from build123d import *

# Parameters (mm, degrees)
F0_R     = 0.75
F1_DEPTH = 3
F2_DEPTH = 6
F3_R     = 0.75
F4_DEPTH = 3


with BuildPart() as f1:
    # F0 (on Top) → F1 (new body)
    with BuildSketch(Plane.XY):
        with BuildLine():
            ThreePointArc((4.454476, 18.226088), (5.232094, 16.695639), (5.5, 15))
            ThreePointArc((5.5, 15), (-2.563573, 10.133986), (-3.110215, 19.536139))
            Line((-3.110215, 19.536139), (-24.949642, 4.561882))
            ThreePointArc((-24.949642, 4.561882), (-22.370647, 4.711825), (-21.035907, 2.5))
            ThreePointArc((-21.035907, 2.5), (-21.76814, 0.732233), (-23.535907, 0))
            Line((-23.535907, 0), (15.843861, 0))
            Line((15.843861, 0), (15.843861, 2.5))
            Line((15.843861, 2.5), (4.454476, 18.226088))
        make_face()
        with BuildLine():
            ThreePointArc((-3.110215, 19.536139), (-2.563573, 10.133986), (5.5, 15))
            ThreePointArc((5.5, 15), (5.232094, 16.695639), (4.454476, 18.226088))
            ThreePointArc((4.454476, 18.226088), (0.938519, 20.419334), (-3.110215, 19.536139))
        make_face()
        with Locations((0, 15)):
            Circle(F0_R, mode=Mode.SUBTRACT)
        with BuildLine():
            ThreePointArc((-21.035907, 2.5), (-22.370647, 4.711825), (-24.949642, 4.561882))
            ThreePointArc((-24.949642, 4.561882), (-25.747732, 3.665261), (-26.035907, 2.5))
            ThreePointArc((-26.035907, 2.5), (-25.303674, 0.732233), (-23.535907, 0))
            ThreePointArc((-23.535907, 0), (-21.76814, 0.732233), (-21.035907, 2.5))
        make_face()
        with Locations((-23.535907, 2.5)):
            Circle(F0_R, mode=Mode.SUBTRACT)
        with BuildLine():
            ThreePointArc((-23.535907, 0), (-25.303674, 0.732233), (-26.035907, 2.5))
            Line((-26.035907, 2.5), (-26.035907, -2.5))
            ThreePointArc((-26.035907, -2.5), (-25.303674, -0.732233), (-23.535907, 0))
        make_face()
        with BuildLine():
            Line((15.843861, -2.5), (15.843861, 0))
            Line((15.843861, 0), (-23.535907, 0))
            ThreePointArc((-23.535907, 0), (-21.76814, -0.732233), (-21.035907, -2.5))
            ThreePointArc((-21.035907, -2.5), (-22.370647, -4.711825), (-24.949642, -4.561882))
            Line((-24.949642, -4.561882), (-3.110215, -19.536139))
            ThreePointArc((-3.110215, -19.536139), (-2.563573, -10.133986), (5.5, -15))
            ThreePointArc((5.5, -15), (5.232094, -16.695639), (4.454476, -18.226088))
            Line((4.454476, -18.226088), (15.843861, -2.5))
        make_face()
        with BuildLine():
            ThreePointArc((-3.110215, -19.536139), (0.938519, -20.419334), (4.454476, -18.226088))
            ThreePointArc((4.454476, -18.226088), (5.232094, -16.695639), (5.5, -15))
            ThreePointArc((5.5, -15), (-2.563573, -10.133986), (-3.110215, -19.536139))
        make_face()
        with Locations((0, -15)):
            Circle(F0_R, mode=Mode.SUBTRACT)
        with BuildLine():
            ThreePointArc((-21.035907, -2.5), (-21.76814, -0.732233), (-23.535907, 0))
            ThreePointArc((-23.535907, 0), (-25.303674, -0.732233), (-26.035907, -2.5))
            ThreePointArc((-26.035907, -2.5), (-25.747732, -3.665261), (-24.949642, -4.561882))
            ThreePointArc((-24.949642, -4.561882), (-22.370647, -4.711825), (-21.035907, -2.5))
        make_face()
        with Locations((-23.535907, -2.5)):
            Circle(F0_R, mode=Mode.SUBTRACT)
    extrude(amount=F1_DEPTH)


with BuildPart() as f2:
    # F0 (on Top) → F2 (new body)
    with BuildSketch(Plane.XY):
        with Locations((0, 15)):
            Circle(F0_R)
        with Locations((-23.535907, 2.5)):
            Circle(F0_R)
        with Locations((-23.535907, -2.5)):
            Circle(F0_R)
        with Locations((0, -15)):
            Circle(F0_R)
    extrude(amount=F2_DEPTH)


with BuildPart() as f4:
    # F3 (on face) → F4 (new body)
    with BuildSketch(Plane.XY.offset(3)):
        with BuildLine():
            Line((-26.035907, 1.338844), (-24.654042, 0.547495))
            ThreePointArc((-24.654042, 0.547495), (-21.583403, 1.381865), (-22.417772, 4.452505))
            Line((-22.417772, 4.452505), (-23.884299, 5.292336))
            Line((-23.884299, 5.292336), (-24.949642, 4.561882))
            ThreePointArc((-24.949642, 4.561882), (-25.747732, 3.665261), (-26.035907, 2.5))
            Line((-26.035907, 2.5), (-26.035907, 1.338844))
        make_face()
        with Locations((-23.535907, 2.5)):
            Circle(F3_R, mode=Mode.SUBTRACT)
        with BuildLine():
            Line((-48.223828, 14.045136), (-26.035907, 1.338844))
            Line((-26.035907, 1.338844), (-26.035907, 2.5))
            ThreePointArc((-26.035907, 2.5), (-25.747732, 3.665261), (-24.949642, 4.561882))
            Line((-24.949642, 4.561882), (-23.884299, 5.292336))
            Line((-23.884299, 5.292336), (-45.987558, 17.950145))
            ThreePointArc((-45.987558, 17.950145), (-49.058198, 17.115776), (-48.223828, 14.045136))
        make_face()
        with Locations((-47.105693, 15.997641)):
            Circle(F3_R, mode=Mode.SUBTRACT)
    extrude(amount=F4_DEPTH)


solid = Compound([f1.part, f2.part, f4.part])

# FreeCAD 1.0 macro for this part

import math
import FreeCAD as App
import Part
import Sketcher
Q = App.Units.Quantity

doc = App.newDocument("Part")
params = doc.addObject("Spreadsheet::Sheet", "Params")
for row, (alias, value) in enumerate([
    ("sketch1_diameter", "1.5 mm"),
    ("sketch1_radius", "2.499999 mm"),
    ("sketch1_radius2", "5.499999 mm"),
    ("sketch1_height", "5 mm"),
    ("pad1_length", "3 mm"),
    ("sketch2_diameter", "1.5 mm"),
    ("pad2_length", "6 mm"),
    ("sketch3_diameter", "1.5 mm"),
    ("sketch3_radius", "2.25 mm"),
    ("pad3_length", "3 mm"),
], start=1):
    params.set(f"A{row}", alias)
    params.set(f"B{row}", "=" + value)
    params.setAlias(f"B{row}", alias)

body = doc.addObject("PartDesign::Body", "Body")

sketch1 = doc.addObject("Sketcher::SketchObject", "Sketch")
body.addObject(sketch1)
sketch1.AttachmentSupport = (doc.XY_Plane, [""])
sketch1.MapMode = "FlatFace"
sketch1.addGeometry(Part.LineSegment(App.Vector(-3.1, 19.5, 0), App.Vector(-24.9, 4.6, 0)), False)
sketch1.addGeometry(Part.ArcOfCircle(Part.Circle(App.Vector(-23.5, 2.5, 0), App.Vector(0, 0, 1), 2.5), math.radians(124), math.radians(180)), False)
sketch1.addGeometry(Part.LineSegment(App.Vector(-26, 2.5, 0), App.Vector(-26, -2.5, 0)), False)
sketch1.addGeometry(Part.ArcOfCircle(Part.Circle(App.Vector(-23.5, -2.5, 0), App.Vector(0, 0, 1), 2.5), math.radians(180), math.radians(236)), False)
sketch1.addGeometry(Part.LineSegment(App.Vector(-24.9, -4.6, 0), App.Vector(-3.1, -19.5, 0)), False)
sketch1.addGeometry(Part.ArcOfCircle(Part.Circle(App.Vector(0, -15, 0), App.Vector(0, 0, 1), 5.5), math.radians(-124), math.radians(-36)), False)
sketch1.addGeometry(Part.LineSegment(App.Vector(4.5, -18.2, 0), App.Vector(15.8, -2.5, 0)), False)
sketch1.addGeometry(Part.LineSegment(App.Vector(15.8, -2.5, 0), App.Vector(15.8, 2.5, 0)), False)
sketch1.addGeometry(Part.LineSegment(App.Vector(15.8, 2.5, 0), App.Vector(4.5, 18.2, 0)), False)
sketch1.addGeometry(Part.ArcOfCircle(Part.Circle(App.Vector(0, 15, 0), App.Vector(0, 0, 1), 5.5), math.radians(36), math.radians(124)), False)
sketch1.addGeometry(Part.Circle(App.Vector(-23.5, -2.5, 0), App.Vector(0, 0, 1), 0.8), False)
sketch1.addGeometry(Part.Circle(App.Vector(0, -15, 0), App.Vector(0, 0, 1), 0.8), False)
sketch1.addGeometry(Part.Circle(App.Vector(-23.5, 2.5, 0), App.Vector(0, 0, 1), 0.8), False)
sketch1.addGeometry(Part.Circle(App.Vector(0, 15, 0), App.Vector(0, 0, 1), 0.8), False)
sketch1.addConstraint(Sketcher.Constraint("Tangent", 0, 2, 1, 1))
sketch1.addConstraint(Sketcher.Constraint("Tangent", 1, 2, 2, 1))
sketch1.addConstraint(Sketcher.Constraint("Tangent", 2, 2, 3, 1))
sketch1.addConstraint(Sketcher.Constraint("Tangent", 3, 2, 4, 1))
sketch1.addConstraint(Sketcher.Constraint("Tangent", 4, 2, 5, 1))
sketch1.addConstraint(Sketcher.Constraint("Tangent", 5, 2, 6, 1))
sketch1.addConstraint(Sketcher.Constraint("Coincident", 6, 2, 7, 1))
sketch1.addConstraint(Sketcher.Constraint("Coincident", 7, 2, 8, 1))
sketch1.addConstraint(Sketcher.Constraint("Tangent", 8, 2, 9, 1))
sketch1.addConstraint(Sketcher.Constraint("Tangent", 9, 2, 0, 1))
sketch1.addConstraint(Sketcher.Constraint("Vertical", 2))
sketch1.addConstraint(Sketcher.Constraint("Vertical", 7))
sketch1.addConstraint(Sketcher.Constraint("Coincident", 10, 3, 3, 3))
sketch1.addConstraint(Sketcher.Constraint("Coincident", 11, 3, 5, 3))
sketch1.addConstraint(Sketcher.Constraint("Coincident", 12, 3, 1, 3))
sketch1.addConstraint(Sketcher.Constraint("Coincident", 13, 3, 9, 3))
sketch1.addConstraint(Sketcher.Constraint("Equal", 1, 3))
sketch1.addConstraint(Sketcher.Constraint("Equal", 5, 9))
sketch1.addConstraint(Sketcher.Constraint("Equal", 10, 11))
sketch1.addConstraint(Sketcher.Constraint("Equal", 11, 12))
sketch1.addConstraint(Sketcher.Constraint("Equal", 12, 13))
sketch1.addConstraint(Sketcher.Constraint("Symmetric", 5, 3, 9, 3, -1, 1))
sketch1.addConstraint(Sketcher.Constraint("Symmetric", 0, 2, 3, 2, -1))
sketch1.addConstraint(Sketcher.Constraint("Horizontal", 2, 2, 6, 2))
sketch1.addConstraint(Sketcher.Constraint("Horizontal", 1, 2, 7, 2))
sketch1.addConstraint(Sketcher.Constraint("Diameter", 10, Q("1.5 mm")))
sketch1.addConstraint(Sketcher.Constraint("Radius", 1, Q("2.499999 mm")))
sketch1.addConstraint(Sketcher.Constraint("Radius", 5, Q("5.499999 mm")))
sketch1.addConstraint(Sketcher.Constraint("DistanceY", 2, 2, 2, 1, Q("5 mm")))
sketch1.addConstraint(Sketcher.Constraint("DistanceY", 5, 3, -1, 1, Q("15 mm")))
sketch1.addConstraint(Sketcher.Constraint("DistanceX", 1, 3, -1, 1, Q("23.535908 mm")))
sketch1.addConstraint(Sketcher.Constraint("DistanceY", 5, 2, -1, 1, Q("18.226088 mm")))
sketch1.setExpression("Constraints[25]", "Params.sketch1_diameter")
sketch1.setExpression("Constraints[26]", "Params.sketch1_radius")
sketch1.setExpression("Constraints[27]", "Params.sketch1_radius2")
sketch1.setExpression("Constraints[28]", "Params.sketch1_height")
pad1 = doc.addObject("PartDesign::Pad", "Pad")
body.addObject(pad1)
pad1.Profile = sketch1
pad1.setExpression("Length", "Params.pad1_length")
body2 = doc.addObject("PartDesign::Body", "Body001")
body2.AllowCompound = True

sketch2 = doc.addObject("Sketcher::SketchObject", "Sketch001")
body2.addObject(sketch2)
sketch2.AttachmentSupport = (doc.getObject("XY_Plane001"), [""])
sketch2.MapMode = "FlatFace"
sketch2.addGeometry(Part.Circle(App.Vector(0, 15, 0), App.Vector(0, 0, 1), 0.8), False)
sketch2.addGeometry(Part.Circle(App.Vector(-23.5, 2.5, 0), App.Vector(0, 0, 1), 0.8), False)
sketch2.addGeometry(Part.Circle(App.Vector(-23.5, -2.5, 0), App.Vector(0, 0, 1), 0.8), False)
sketch2.addGeometry(Part.Circle(App.Vector(0, -15, 0), App.Vector(0, 0, 1), 0.8), False)
sketch2.addConstraint(Sketcher.Constraint("Equal", 0, 1))
sketch2.addConstraint(Sketcher.Constraint("Equal", 1, 2))
sketch2.addConstraint(Sketcher.Constraint("Equal", 2, 3))
sketch2.addConstraint(Sketcher.Constraint("Symmetric", 0, 3, 3, 3, -1, 1))
sketch2.addConstraint(Sketcher.Constraint("Symmetric", 1, 3, 2, 3, -1))
sketch2.addConstraint(Sketcher.Constraint("PointOnObject", 0, 3, -2))
sketch2.addConstraint(Sketcher.Constraint("Diameter", 0, Q("1.5 mm")))
sketch2.addConstraint(Sketcher.Constraint("DistanceY", -1, 1, 0, 3, Q("15 mm")))
sketch2.addConstraint(Sketcher.Constraint("DistanceY", 2, 3, 1, 3, Q("5 mm")))
sketch2.addConstraint(Sketcher.Constraint("DistanceX", 1, 3, -1, 1, Q("23.535907 mm")))
sketch2.setExpression("Constraints[6]", "Params.sketch2_diameter")
pad2 = doc.addObject("PartDesign::Pad", "Pad001")
body2.addObject(pad2)
pad2.Profile = sketch2
pad2.setExpression("Length", "Params.pad2_length")
body3 = doc.addObject("PartDesign::Body", "Body002")

sketch3 = doc.addObject("Sketcher::SketchObject", "Sketch002")
body3.addObject(sketch3)
sketch3.AttachmentSupport = (doc.getObject("XY_Plane002"), [""])
sketch3.MapMode = "FlatFace"
sketch3.AttachmentOffset = App.Placement(App.Vector(0, 0, 3), App.Rotation())
sketch3.addGeometry(Part.LineSegment(App.Vector(-26, 1.3, 0), App.Vector(-24.7, 0.5, 0)), False)
sketch3.addGeometry(Part.ArcOfCircle(Part.Circle(App.Vector(-23.5, 2.5, 0), App.Vector(0, 0, 1), 2.3), math.radians(-120), math.radians(60)), False)
sketch3.addGeometry(Part.LineSegment(App.Vector(-22.4, 4.5, 0), App.Vector(-23.9, 5.3, 0)), False)
sketch3.addGeometry(Part.LineSegment(App.Vector(-23.9, 5.3, 0), App.Vector(-46, 18, 0)), False)
sketch3.addGeometry(Part.ArcOfCircle(Part.Circle(App.Vector(-47.1, 16, 0), App.Vector(0, 0, 1), 2.2), math.radians(60), math.radians(240)), False)
sketch3.addGeometry(Part.LineSegment(App.Vector(-48.2, 14, 0), App.Vector(-26, 1.3, 0)), False)
sketch3.addGeometry(Part.Circle(App.Vector(-23.5, 2.5, 0), App.Vector(0, 0, 1), 0.8), False)
sketch3.addGeometry(Part.Circle(App.Vector(-47.1, 16, 0), App.Vector(0, 0, 1), 0.8), False)
sketch3.addConstraint(Sketcher.Constraint("Tangent", 0, 2, 1, 1))
sketch3.addConstraint(Sketcher.Constraint("Tangent", 1, 2, 2, 1))
sketch3.addConstraint(Sketcher.Constraint("Coincident", 2, 2, 3, 1))
sketch3.addConstraint(Sketcher.Constraint("Tangent", 3, 2, 4, 1))
sketch3.addConstraint(Sketcher.Constraint("Tangent", 4, 2, 5, 1))
sketch3.addConstraint(Sketcher.Constraint("Coincident", 5, 2, 0, 1))
sketch3.addConstraint(Sketcher.Constraint("Coincident", 6, 3, 1, 3))
sketch3.addConstraint(Sketcher.Constraint("Coincident", 7, 3, 4, 3))
sketch3.addConstraint(Sketcher.Constraint("Equal", 1, 4))
sketch3.addConstraint(Sketcher.Constraint("Equal", 6, 7))
sketch3.addConstraint(Sketcher.Constraint("Parallel", 0, 2))
sketch3.addConstraint(Sketcher.Constraint("Parallel", 2, 3))
sketch3.addConstraint(Sketcher.Constraint("Diameter", 6, Q("1.5 mm")))
sketch3.addConstraint(Sketcher.Constraint("Radius", 1, Q("2.25 mm")))
sketch3.addConstraint(Sketcher.Constraint("DistanceY", -1, 1, 1, 3, Q("2.5 mm")))
sketch3.addConstraint(Sketcher.Constraint("DistanceX", 5, 2, 1, 3, Q("2.499999 mm")))
sketch3.addConstraint(Sketcher.Constraint("DistanceX", 2, 2, -1, 1, Q("23.884299 mm")))
sketch3.addConstraint(Sketcher.Constraint("DistanceY", 2, 2, 4, 2, Q("8.7528 mm")))
sketch3.addConstraint(Sketcher.Constraint("DistanceY", -1, 1, 4, 3, Q("15.997641 mm")))
sketch3.addConstraint(Sketcher.Constraint("DistanceX", 7, 3, 0, 2, Q("22.451651 mm")))
sketch3.setExpression("Constraints[12]", "Params.sketch3_diameter")
sketch3.setExpression("Constraints[13]", "Params.sketch3_radius")
pad3 = doc.addObject("PartDesign::Pad", "Pad002")
body3.addObject(pad3)
pad3.Profile = sketch3
pad3.setExpression("Length", "Params.pad3_length")

doc.recompute()
